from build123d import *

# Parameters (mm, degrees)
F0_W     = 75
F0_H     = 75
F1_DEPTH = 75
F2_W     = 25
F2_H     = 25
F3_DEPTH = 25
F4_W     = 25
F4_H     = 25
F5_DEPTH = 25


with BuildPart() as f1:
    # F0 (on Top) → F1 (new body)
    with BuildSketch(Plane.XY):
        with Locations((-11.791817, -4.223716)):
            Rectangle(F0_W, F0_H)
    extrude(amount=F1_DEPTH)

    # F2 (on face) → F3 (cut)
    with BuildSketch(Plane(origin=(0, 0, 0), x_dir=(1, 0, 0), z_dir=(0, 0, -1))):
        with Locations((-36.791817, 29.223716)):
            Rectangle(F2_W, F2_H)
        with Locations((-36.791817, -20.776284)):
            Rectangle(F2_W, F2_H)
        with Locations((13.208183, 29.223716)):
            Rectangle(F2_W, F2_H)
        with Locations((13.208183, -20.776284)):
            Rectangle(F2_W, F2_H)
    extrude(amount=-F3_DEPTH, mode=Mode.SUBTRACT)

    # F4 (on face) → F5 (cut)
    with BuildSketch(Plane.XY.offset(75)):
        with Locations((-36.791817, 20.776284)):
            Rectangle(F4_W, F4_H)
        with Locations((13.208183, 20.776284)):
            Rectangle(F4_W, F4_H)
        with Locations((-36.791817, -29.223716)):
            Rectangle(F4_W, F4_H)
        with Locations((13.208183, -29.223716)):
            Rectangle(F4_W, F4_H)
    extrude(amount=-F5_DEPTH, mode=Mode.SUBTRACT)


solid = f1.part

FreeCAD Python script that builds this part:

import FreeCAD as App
import Part
import Sketcher
from FreeCAD import Vector
Q = App.Units.Quantity

doc = App.newDocument("Part")
params = doc.addObject("Spreadsheet::Sheet", "Params")
for row, (alias, value) in enumerate([
    ("sketch1_width", "75 mm"),
    ("pad1_length", "75 mm"),
    ("sketch2_width", "25 mm"),
    ("pocket1_length", "25 mm"),
    ("sketch3_width", "25 mm"),
    ("pocket2_length", "25 mm"),
], start=1):
    params.set(f"A{row}", alias)
    params.set(f"B{row}", "=" + value)
    params.setAlias(f"B{row}", alias)

body = doc.addObject("PartDesign::Body", "Body")

sketch1 = body.newObject("Sketcher::SketchObject", "Sketch")
sketch1.AttachmentSupport = (doc.getObject("XY_Plane"), [""])
sketch1.MapMode = "FlatFace"
sketch1.addGeometry([
    Part.LineSegment(Vector(-49, 33, 0), Vector(-49, -42, 0)),
    Part.LineSegment(Vector(-49, -42, 0), Vector(26, -42, 0)),
    Part.LineSegment(Vector(26, -42, 0), Vector(26, 33, 0)),
    Part.LineSegment(Vector(26, 33, 0), Vector(-49, 33, 0)),
], False)
sketch1.addConstraint([
    Sketcher.Constraint("Coincident", 0, 2, 1, 1),
    Sketcher.Constraint("Coincident", 1, 2, 2, 1),
    Sketcher.Constraint("Coincident", 2, 2, 3, 1),
    Sketcher.Constraint("Coincident", 3, 2, 0, 1),
    Sketcher.Constraint("Vertical", 0),
    Sketcher.Constraint("Horizontal", 1),
    Sketcher.Constraint("Vertical", 2),
    Sketcher.Constraint("Horizontal", 3),
    Sketcher.Constraint("Equal", 3, 0),
    Sketcher.Constraint("DistanceX", 1, 1, 1, 2, Q("75 mm")),
    Sketcher.Constraint("DistanceX", 0, 2, -1, 1, Q("49.291817 mm")),
    Sketcher.Constraint("DistanceY", 0, 2, -1, 1, Q("41.723716 mm")),
])
sketch1.setExpression("Constraints[9]", "Params.sketch1_width")
pad1 = body.newObject("PartDesign::Pad", "Pad")
pad1.Profile = sketch1
pad1.setExpression("Length", "Params.pad1_length")

sketch2 = body.newObject("Sketcher::SketchObject", "Sketch001")
sketch2.AttachmentSupport = (doc.getObject("XY_Plane"), [""])
sketch2.MapMode = "FlatFace"
sketch2.addGeometry([
    Part.LineSegment(Vector(-49, -42, 0), Vector(-49, -17, 0)),
    Part.LineSegment(Vector(-49, -17, 0), Vector(-24, -17, 0)),
    Part.LineSegment(Vector(-24, -17, 0), Vector(-24, -42, 0)),
    Part.LineSegment(Vector(-24, -42, 0), Vector(-49, -42, 0)),
    Part.LineSegment(Vector(-49, 8, 0), Vector(-49, 33, 0)),
    Part.LineSegment(Vector(-49, 33, 0), Vector(-24, 33, 0)),
    Part.LineSegment(Vector(-24, 33, 0), Vector(-24, 8, 0)),
    Part.LineSegment(Vector(-24, 8, 0), Vector(-49, 8, 0)),
    Part.LineSegment(Vector(1, -42, 0), Vector(1, -17, 0)),
    Part.LineSegment(Vector(1, -17, 0), Vector(26, -17, 0)),
    Part.LineSegment(Vector(26, -17, 0), Vector(26, -42, 0)),
    Part.LineSegment(Vector(26, -42, 0), Vector(1, -42, 0)),
    Part.LineSegment(Vector(1, 8, 0), Vector(1, 33, 0)),
    Part.LineSegment(Vector(1, 33, 0), Vector(26, 33, 0)),
    Part.LineSegment(Vector(26, 33, 0), Vector(26, 8, 0)),
    Part.LineSegment(Vector(26, 8, 0), Vector(1, 8, 0)),
], False)
sketch2.addConstraint([
    Sketcher.Constraint("Coincident", 0, 2, 1, 1),
    Sketcher.Constraint("Coincident", 1, 2, 2, 1),
    Sketcher.Constraint("Coincident", 2, 2, 3, 1),
    Sketcher.Constraint("Coincident", 3, 2, 0, 1),
    Sketcher.Constraint("Coincident", 4, 2, 5, 1),
    Sketcher.Constraint("Coincident", 5, 2, 6, 1),
    Sketcher.Constraint("Coincident", 6, 2, 7, 1),
    Sketcher.Constraint("Coincident", 7, 2, 4, 1),
    Sketcher.Constraint("Coincident", 8, 2, 9, 1),
    Sketcher.Constraint("Coincident", 9, 2, 10, 1),
    Sketcher.Constraint("Coincident", 10, 2, 11, 1),
    Sketcher.Constraint("Coincident", 11, 2, 8, 1),
    Sketcher.Constraint("Coincident", 12, 2, 13, 1),
    Sketcher.Constraint("Coincident", 13, 2, 14, 1),
    Sketcher.Constraint("Coincident", 14, 2, 15, 1),
    Sketcher.Constraint("Coincident", 15, 2, 12, 1),
    Sketcher.Constraint("Vertical", 0),
    Sketcher.Constraint("Horizontal", 1),
    Sketcher.Constraint("Vertical", 2),
    Sketcher.Constraint("Horizontal", 3),
    Sketcher.Constraint("Vertical", 4),
    Sketcher.Constraint("Horizontal", 5),
    Sketcher.Constraint("Vertical", 6),
    Sketcher.Constraint("Horizontal", 7),
    Sketcher.Constraint("Vertical", 8),
    Sketcher.Constraint("Horizontal", 9),
    Sketcher.Constraint("Vertical", 10),
    Sketcher.Constraint("Horizontal", 11),
    Sketcher.Constraint("Vertical", 12),
    Sketcher.Constraint("Horizontal", 13),
    Sketcher.Constraint("Vertical", 14),
    Sketcher.Constraint("Horizontal", 15),
    Sketcher.Constraint("Horizontal", 1, 2, 8, 2),
    Sketcher.Constraint("Horizontal", 3, 2, 10, 2),
    Sketcher.Constraint("Horizontal", 5, 2, 12, 2),
    Sketcher.Constraint("Horizontal", 7, 2, 14, 2),
    Sketcher.Constraint("Vertical", 3, 2, 4, 2),
    Sketcher.Constraint("Vertical", 2, 2, 5, 2),
    Sketcher.Constraint("Vertical", 11, 2, 12, 2),
    Sketcher.Constraint("Vertical", 10, 2, 13, 2),
    Sketcher.Constraint("Equal", 7, 9),
    Sketcher.Constraint("Equal", 15, 0),
    Sketcher.Constraint("Equal", 2, 4),
    Sketcher.Constraint("DistanceX", 1, 1, 1, 2, Q("25 mm")),
    Sketcher.Constraint("DistanceY", 0, 2, 4, 2, Q("50 mm")),
    Sketcher.Constraint("DistanceX", 1, 2, 8, 2, Q("25 mm")),
    Sketcher.Constraint("DistanceX", 0, 2, -1, 1, Q("49.291817 mm")),
    Sketcher.Constraint("DistanceY", 0, 2, -1, 1, Q("16.723716 mm")),
])
sketch2.setExpression("Constraints[43]", "Params.sketch2_width")
pocket1 = body.newObject("PartDesign::Pocket", "Pocket")
pocket1.Profile = sketch2
pocket1.setExpression("Length", "Params.pocket1_length")
pocket1.Reversed = True

sketch3 = body.newObject("Sketcher::SketchObject", "Sketch002")
sketch3.AttachmentSupport = (doc.getObject("XY_Plane"), [""])
sketch3.MapMode = "FlatFace"
sketch3.AttachmentOffset = App.Placement(Vector(0, 0, 75), App.Rotation())
sketch3.addGeometry([
    Part.LineSegment(Vector(-49, 33, 0), Vector(-49, 8, 0)),
    Part.LineSegment(Vector(-49, 8, 0), Vector(-24, 8, 0)),
    Part.LineSegment(Vector(-24, 8, 0), Vector(-24, 33, 0)),
    Part.LineSegment(Vector(-24, 33, 0), Vector(-49, 33, 0)),
    Part.LineSegment(Vector(1, 33, 0), Vector(1, 8, 0)),
    Part.LineSegment(Vector(1, 8, 0), Vector(26, 8, 0)),
    Part.LineSegment(Vector(26, 8, 0), Vector(26, 33, 0)),
    Part.LineSegment(Vector(26, 33, 0), Vector(1, 33, 0)),
    Part.LineSegment(Vector(-49, -17, 0), Vector(-49, -42, 0)),
    Part.LineSegment(Vector(-49, -42, 0), Vector(-24, -42, 0)),
    Part.LineSegment(Vector(-24, -42, 0), Vector(-24, -17, 0)),
    Part.LineSegment(Vector(-24, -17, 0), Vector(-49, -17, 0)),
    Part.LineSegment(Vector(1, -17, 0), Vector(1, -42, 0)),
    Part.LineSegment(Vector(1, -42, 0), Vector(26, -42, 0)),
    Part.LineSegment(Vector(26, -42, 0), Vector(26, -17, 0)),
    Part.LineSegment(Vector(26, -17, 0), Vector(1, -17, 0)),
], False)
sketch3.addConstraint([
    Sketcher.Constraint("Coincident", 0, 2, 1, 1),
    Sketcher.Constraint("Coincident", 1, 2, 2, 1),
    Sketcher.Constraint("Coincident", 2, 2, 3, 1),
    Sketcher.Constraint("Coincident", 3, 2, 0, 1),
    Sketcher.Constraint("Coincident", 4, 2, 5, 1),
    Sketcher.Constraint("Coincident", 5, 2, 6, 1),
    Sketcher.Constraint("Coincident", 6, 2, 7, 1),
    Sketcher.Constraint("Coincident", 7, 2, 4, 1),
    Sketcher.Constraint("Coincident", 8, 2, 9, 1),
    Sketcher.Constraint("Coincident", 9, 2, 10, 1),
    Sketcher.Constraint("Coincident", 10, 2, 11, 1),
    Sketcher.Constraint("Coincident", 11, 2, 8, 1),
    Sketcher.Constraint("Coincident", 12, 2, 13, 1),
    Sketcher.Constraint("Coincident", 13, 2, 14, 1),
    Sketcher.Constraint("Coincident", 14, 2, 15, 1),
    Sketcher.Constraint("Coincident", 15, 2, 12, 1),
    Sketcher.Constraint("Vertical", 0),
    Sketcher.Constraint("Horizontal", 1),
    Sketcher.Constraint("Vertical", 2),
    Sketcher.Constraint("Horizontal", 3),
    Sketcher.Constraint("Vertical", 4),
    Sketcher.Constraint("Horizontal", 5),
    Sketcher.Constraint("Vertical", 6),
    Sketcher.Constraint("Horizontal", 7),
    Sketcher.Constraint("Vertical", 8),
    Sketcher.Constraint("Horizontal", 9),
    Sketcher.Constraint("Vertical", 10),
    Sketcher.Constraint("Horizontal", 11),
    Sketcher.Constraint("Vertical", 12),
    Sketcher.Constraint("Horizontal", 13),
    Sketcher.Constraint("Vertical", 14),
    Sketcher.Constraint("Horizontal", 15),
    Sketcher.Constraint("Horizontal", 1, 2, 4, 2),
    Sketcher.Constraint("Horizontal", 3, 2, 6, 2),
    Sketcher.Constraint("Horizontal", 9, 2, 12, 2),
    Sketcher.Constraint("Horizontal", 11, 2, 14, 2),
    Sketcher.Constraint("Vertical", 3, 2, 8, 2),
    Sketcher.Constraint("Vertical", 2, 2, 9, 2),
    Sketcher.Constraint("Vertical", 7, 2, 12, 2),
    Sketcher.Constraint("Vertical", 6, 2, 13, 2),
    Sketcher.Constraint("Equal", 3, 5),
    Sketcher.Constraint("Equal", 15, 0),
    Sketcher.Constraint("Equal", 6, 8),
    Sketcher.Constraint("DistanceX", 1, 1, 1, 2, Q("25 mm")),
    Sketcher.Constraint("DistanceX", 1, 2, 4, 2, Q("25 mm")),
    Sketcher.Constraint("DistanceY", 8, 2, 0, 2, Q("50 mm")),
    Sketcher.Constraint("DistanceX", 0, 2, -1, 1, Q("49.291817 mm")),
    Sketcher.Constraint("DistanceY", -1, 1, 0, 2, Q("8.276284 mm")),
])
sketch3.setExpression("Constraints[43]", "Params.sketch3_width")
pocket2 = body.newObject("PartDesign::Pocket", "Pocket001")
pocket2.Profile = sketch3
pocket2.setExpression("Length", "Params.pocket2_length")

doc.recompute()
